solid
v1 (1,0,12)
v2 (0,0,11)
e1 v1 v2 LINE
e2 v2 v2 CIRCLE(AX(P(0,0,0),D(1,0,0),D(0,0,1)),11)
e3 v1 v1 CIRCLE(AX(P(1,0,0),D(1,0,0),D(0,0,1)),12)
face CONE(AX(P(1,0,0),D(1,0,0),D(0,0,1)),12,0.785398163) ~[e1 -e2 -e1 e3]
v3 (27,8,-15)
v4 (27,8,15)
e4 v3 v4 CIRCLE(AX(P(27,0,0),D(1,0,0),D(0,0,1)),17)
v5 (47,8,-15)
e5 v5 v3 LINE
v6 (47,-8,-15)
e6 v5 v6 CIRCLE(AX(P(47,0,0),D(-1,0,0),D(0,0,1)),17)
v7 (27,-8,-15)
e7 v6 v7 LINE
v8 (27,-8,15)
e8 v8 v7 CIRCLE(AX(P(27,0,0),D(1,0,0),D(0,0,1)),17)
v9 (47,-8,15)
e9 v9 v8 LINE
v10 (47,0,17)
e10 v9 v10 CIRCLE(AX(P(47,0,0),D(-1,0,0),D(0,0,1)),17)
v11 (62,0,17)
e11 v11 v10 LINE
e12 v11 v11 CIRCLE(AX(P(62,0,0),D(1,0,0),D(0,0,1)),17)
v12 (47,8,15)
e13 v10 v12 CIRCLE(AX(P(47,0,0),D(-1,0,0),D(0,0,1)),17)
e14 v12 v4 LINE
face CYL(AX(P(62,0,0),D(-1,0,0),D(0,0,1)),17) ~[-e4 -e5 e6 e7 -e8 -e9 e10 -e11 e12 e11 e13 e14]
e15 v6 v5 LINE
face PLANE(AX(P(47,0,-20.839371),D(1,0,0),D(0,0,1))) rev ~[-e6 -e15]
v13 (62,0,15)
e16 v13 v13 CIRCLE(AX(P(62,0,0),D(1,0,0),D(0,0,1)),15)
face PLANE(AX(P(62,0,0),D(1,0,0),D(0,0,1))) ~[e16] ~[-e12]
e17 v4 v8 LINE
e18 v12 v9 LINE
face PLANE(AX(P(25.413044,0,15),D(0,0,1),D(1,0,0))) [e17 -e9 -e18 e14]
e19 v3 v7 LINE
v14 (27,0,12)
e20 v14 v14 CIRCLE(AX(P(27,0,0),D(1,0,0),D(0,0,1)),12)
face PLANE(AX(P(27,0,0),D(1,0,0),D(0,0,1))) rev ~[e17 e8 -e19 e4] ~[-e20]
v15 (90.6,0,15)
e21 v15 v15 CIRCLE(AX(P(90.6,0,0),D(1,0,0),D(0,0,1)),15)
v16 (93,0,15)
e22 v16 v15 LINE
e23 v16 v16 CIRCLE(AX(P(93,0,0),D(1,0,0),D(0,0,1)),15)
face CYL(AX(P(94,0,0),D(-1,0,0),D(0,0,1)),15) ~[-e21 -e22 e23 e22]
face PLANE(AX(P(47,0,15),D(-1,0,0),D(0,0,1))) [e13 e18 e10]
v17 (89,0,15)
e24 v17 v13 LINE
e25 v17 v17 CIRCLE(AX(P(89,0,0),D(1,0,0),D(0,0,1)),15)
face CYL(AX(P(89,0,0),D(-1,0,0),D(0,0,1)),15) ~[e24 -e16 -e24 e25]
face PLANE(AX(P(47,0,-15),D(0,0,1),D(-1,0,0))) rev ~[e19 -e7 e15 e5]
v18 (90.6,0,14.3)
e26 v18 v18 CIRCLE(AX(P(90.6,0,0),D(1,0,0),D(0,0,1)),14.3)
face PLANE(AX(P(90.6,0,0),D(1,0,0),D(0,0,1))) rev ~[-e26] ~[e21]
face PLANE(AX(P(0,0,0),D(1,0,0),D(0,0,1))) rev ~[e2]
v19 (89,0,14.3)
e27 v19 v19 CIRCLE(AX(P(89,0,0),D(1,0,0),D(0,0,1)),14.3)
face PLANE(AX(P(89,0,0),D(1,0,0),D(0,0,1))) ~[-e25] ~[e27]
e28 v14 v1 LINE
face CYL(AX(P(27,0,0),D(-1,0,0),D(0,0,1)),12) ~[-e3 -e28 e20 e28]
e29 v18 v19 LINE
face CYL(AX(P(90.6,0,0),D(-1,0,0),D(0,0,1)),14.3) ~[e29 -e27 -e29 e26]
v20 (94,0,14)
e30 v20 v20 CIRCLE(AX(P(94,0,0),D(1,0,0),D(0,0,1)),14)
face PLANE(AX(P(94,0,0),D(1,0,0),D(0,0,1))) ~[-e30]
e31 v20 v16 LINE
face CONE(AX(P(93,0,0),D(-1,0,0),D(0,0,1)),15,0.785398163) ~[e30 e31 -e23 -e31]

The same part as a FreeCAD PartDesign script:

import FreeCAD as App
import Part
import Sketcher
Q = App.Units.Quantity


def edges_at(feature, points):
    """Names of the edges that pass closest to the given points."""
    edges = feature.Shape.Edges
    near = lambda p: min(range(len(edges)), key=lambda i: edges[i].distToShape(Part.Vertex(*p))[0])
    return sorted({f"Edge{near(p) + 1}" for p in points})

doc = App.newDocument("Part")
params = doc.addObject("Spreadsheet::Sheet", "Params")
for row, (alias, value) in enumerate([
    ("sketch1_width", "94 mm"),
    ("sketch1_width2", "27 mm"),
    ("sketch1_width3", "35 mm"),
    ("sketch1_height", "12 mm"),
    ("sketch1_height2", "15 mm"),
    ("revolution_angle", "360 deg"),
    ("chamfer_size", "1 mm"),
    ("chamfer2_size", "1 mm"),
    ("pocket1_length", "25 mm"),
], start=1):
    params.set(f"A{row}", alias)
    params.set(f"B{row}", "=" + value)
    params.setAlias(f"B{row}", alias)

body = doc.addObject("PartDesign::Body", "Body")

sketch1 = body.newObject("Sketcher::SketchObject", "Sketch")
sketch1.AttachmentSupport = (doc.getObject("XZ_Plane"), [""])
sketch1.MapMode = "FlatFace"
sketch1.addGeometry([
    Part.LineSegment(App.Vector(0, 12, 0), App.Vector(0, 0, 0)),
    Part.LineSegment(App.Vector(0, 0, 0), App.Vector(94, 0, 0)),
    Part.LineSegment(App.Vector(94, 0, 0), App.Vector(94, 15, 0)),
    Part.LineSegment(App.Vector(94, 15, 0), App.Vector(90.6, 15, 0)),
    Part.LineSegment(App.Vector(90.6, 15, 0), App.Vector(90.6, 14.3, 0)),
    Part.LineSegment(App.Vector(90.6, 14.3, 0), App.Vector(89, 14.3, 0)),
    Part.LineSegment(App.Vector(89, 14.3, 0), App.Vector(89, 15, 0)),
    Part.LineSegment(App.Vector(89, 15, 0), App.Vector(62, 15, 0)),
    Part.LineSegment(App.Vector(62, 15, 0), App.Vector(62, 17, 0)),
    Part.LineSegment(App.Vector(62, 17, 0), App.Vector(27, 17, 0)),
    Part.LineSegment(App.Vector(27, 17, 0), App.Vector(27, 12, 0)),
    Part.LineSegment(App.Vector(27, 12, 0), App.Vector(0, 12, 0)),
], False)
sketch1.addConstraint([
    Sketcher.Constraint("Coincident", 0, 2, 1, 1),
    Sketcher.Constraint("Coincident", 1, 2, 2, 1),
    Sketcher.Constraint("Coincident", 2, 2, 3, 1),
    Sketcher.Constraint("Coincident", 3, 2, 4, 1),
    Sketcher.Constraint("Coincident", 4, 2, 5, 1),
    Sketcher.Constraint("Coincident", 5, 2, 6, 1),
    Sketcher.Constraint("Coincident", 6, 2, 7, 1),
    Sketcher.Constraint("Coincident", 7, 2, 8, 1),
    Sketcher.Constraint("Coincident", 8, 2, 9, 1),
    Sketcher.Constraint("Coincident", 9, 2, 10, 1),
    Sketcher.Constraint("Coincident", 10, 2, 11, 1),
    Sketcher.Constraint("Coincident", 11, 2, 0, 1),
    Sketcher.Constraint("Vertical", 0),
    Sketcher.Constraint("Horizontal", 1),
    Sketcher.Constraint("Vertical", 2),
    Sketcher.Constraint("Horizontal", 3),
    Sketcher.Constraint("Vertical", 4),
    Sketcher.Constraint("Horizontal", 5),
    Sketcher.Constraint("Vertical", 6),
    Sketcher.Constraint("Horizontal", 7),
    Sketcher.Constraint("Vertical", 8),
    Sketcher.Constraint("Horizontal", 9),
    Sketcher.Constraint("Vertical", 10),
    Sketcher.Constraint("Horizontal", 11),
    Sketcher.Constraint("Coincident", 0, 2, -1, 1),
    Sketcher.Constraint("Horizontal", 3, 2, 6, 2),
    Sketcher.Constraint("Equal", 7, 11),
    Sketcher.Constraint("DistanceX", 1, 1, 1, 2, Q("94 mm")),
    Sketcher.Constraint("DistanceX", 7, 2, 7, 1, Q("27 mm")),
    Sketcher.Constraint("DistanceX", 9, 2, 9, 1, Q("35 mm")),
    Sketcher.Constraint("DistanceY", 0, 2, 0, 1, Q("12 mm")),
    Sketcher.Constraint("DistanceY", 2, 1, 2, 2, Q("15 mm")),
    Sketcher.Constraint("DistanceY", 8, 1, 8, 2, Q("2 mm")),
    Sketcher.Constraint("DistanceX", 3, 2, 3, 1, Q("3.4 mm")),
    Sketcher.Constraint("DistanceY", 4, 2, 4, 1, Q("0.7 mm")),
])
sketch1.setExpression("Constraints[27]", "Params.sketch1_width")
sketch1.setExpression("Constraints[28]", "Params.sketch1_width2")
sketch1.setExpression("Constraints[29]", "Params.sketch1_width3")
sketch1.setExpression("Constraints[30]", "Params.sketch1_height")
sketch1.setExpression("Constraints[31]", "Params.sketch1_height2")
revolution = body.newObject("PartDesign::Revolution", "Revolution")
revolution.Profile = sketch1
revolution.ReferenceAxis = (sketch1, ["H_Axis"])
revolution.setExpression("Angle", "Params.revolution_angle")
doc.recompute()

chamfer = body.newObject("PartDesign::Chamfer", "Chamfer")
chamfer.Base = (revolution, edges_at(revolution, [(94, 0, -15)]))
chamfer.setExpression("Size", "Params.chamfer_size")
doc.recompute()

chamfer2 = body.newObject("PartDesign::Chamfer", "Chamfer001")
chamfer2.Base = (chamfer, edges_at(chamfer, [(0, 0, -12)]))
chamfer2.setExpression("Size", "Params.chamfer2_size")

sketch2 = body.newObject("Sketcher::SketchObject", "Sketch001")
sketch2.AttachmentSupport = (doc.getObject("XZ_Plane"), [""])
sketch2.MapMode = "FlatFace"
sketch2.addGeometry([
    Part.LineSegment(App.Vector(26, 21, 0), App.Vector(25, 15, 0)),
    Part.LineSegment(App.Vector(25, 15, 0), App.Vector(47, 15, 0)),
    Part.LineSegment(App.Vector(47, 15, 0), App.Vector(47, 21, 0)),
    Part.LineSegment(App.Vector(47, 21, 0), App.Vector(26, 21, 0)),
    Part.LineSegment(App.Vector(47, -15, 0), App.Vector(25, -15, 0)),
    Part.LineSegment(App.Vector(25, -15, 0), App.Vector(26, -21, 0)),
    Part.LineSegment(App.Vector(26, -21, 0), App.Vector(47, -21, 0)),
    Part.LineSegment(App.Vector(47, -21, 0), App.Vector(47, -15, 0)),
], False)
sketch2.addConstraint([
    Sketcher.Constraint("Coincident", 0, 2, 1, 1),
    Sketcher.Constraint("Coincident", 1, 2, 2, 1),
    Sketcher.Constraint("Coincident", 2, 2, 3, 1),
    Sketcher.Constraint("Coincident", 3, 2, 0, 1),
    Sketcher.Constraint("Coincident", 4, 2, 5, 1),
    Sketcher.Constraint("Coincident", 5, 2, 6, 1),
    Sketcher.Constraint("Coincident", 6, 2, 7, 1),
    Sketcher.Constraint("Coincident", 7, 2, 4, 1),
    Sketcher.Constraint("Horizontal", 1),
    Sketcher.Constraint("Vertical", 2),
    Sketcher.Constraint("Horizontal", 3),
    Sketcher.Constraint("Horizontal", 4),
    Sketcher.Constraint("Horizontal", 6),
    Sketcher.Constraint("Vertical", 7),
    Sketcher.Constraint("Symmetric", 0, 2, 4, 2, -1),
    Sketcher.Constraint("Symmetric", 3, 2, 5, 2, -1),
    Sketcher.Constraint("Vertical", 2, 2, 6, 2),
    Sketcher.Constraint("DistanceY", -1, 1, 0, 2, Q("15 mm")),
    Sketcher.Constraint("DistanceX", -1, 1, 1, 2, Q("47 mm")),
    Sketcher.Constraint("DistanceX", 3, 2, 3, 1, Q("21.266492 mm")),
    Sketcher.Constraint("DistanceY", 2, 1, 2, 2, Q("5.839371 mm")),
    Sketcher.Constraint("DistanceX", 1, 1, 1, 2, Q("21.586956 mm")),
])
pocket1 = body.newObject("PartDesign::Pocket", "Pocket")
pocket1.Profile = sketch2
pocket1.setExpression("Length", "Params.pocket1_length")
pocket1.Midplane = True

doc.recompute()
